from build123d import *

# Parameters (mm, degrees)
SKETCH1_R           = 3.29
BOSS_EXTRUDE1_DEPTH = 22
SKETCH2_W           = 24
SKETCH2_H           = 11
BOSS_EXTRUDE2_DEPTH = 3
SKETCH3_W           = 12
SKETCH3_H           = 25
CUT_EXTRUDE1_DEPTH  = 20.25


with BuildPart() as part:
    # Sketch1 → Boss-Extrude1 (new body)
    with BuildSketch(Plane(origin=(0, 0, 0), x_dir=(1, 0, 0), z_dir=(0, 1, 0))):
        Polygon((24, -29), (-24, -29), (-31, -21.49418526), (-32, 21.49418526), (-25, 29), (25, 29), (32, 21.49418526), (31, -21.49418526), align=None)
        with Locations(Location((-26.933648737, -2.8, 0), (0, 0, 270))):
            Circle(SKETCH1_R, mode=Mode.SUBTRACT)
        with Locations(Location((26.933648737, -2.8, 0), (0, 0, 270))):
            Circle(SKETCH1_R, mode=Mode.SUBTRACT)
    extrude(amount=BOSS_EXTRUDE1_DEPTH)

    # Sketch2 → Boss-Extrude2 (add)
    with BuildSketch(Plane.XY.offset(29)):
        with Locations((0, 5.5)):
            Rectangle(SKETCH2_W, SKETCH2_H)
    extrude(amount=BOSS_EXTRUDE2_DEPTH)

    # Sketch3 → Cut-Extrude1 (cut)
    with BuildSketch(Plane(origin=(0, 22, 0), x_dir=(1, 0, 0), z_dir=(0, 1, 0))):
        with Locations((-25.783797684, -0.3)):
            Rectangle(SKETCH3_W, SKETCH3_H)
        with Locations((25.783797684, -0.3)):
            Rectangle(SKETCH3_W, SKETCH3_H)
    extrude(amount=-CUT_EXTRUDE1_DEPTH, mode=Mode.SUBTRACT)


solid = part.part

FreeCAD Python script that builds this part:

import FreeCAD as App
import Part
import Sketcher

V = App.Vector
Q = App.Units.Quantity

doc = App.newDocument("Part")
body = doc.addObject("PartDesign::Body", "Body")

sketch1 = doc.addObject("Sketcher::SketchObject", "Sketch")
body.addObject(sketch1)
sketch1.AttachmentSupport = (doc.XZ_Plane, [""])
sketch1.MapMode = "FlatFace"
sketch1.addGeometry([
    Part.LineSegment(V(-24, 29, 0), V(24, 29, 0)),
    Part.LineSegment(V(24, 29, 0), V(31, 21.5, 0)),
    Part.LineSegment(V(31, 21.5, 0), V(32, -21.5, 0)),
    Part.LineSegment(V(32, -21.5, 0), V(25, -29, 0)),
    Part.LineSegment(V(25, -29, 0), V(-25, -29, 0)),
    Part.LineSegment(V(-25, -29, 0), V(-32, -21.5, 0)),
    Part.LineSegment(V(-32, -21.5, 0), V(-31, 21.5, 0)),
    Part.LineSegment(V(-31, 21.5, 0), V(-24, 29, 0)),
    Part.Circle(V(26.9, 2.8, 0), V(0, 0, 1), 3.3),
    Part.Circle(V(-26.9, 2.8, 0), V(0, 0, 1), 3.3),
], False)
sketch1.addConstraint([
    Sketcher.Constraint("Coincident", 0, 2, 1, 1),
    Sketcher.Constraint("Coincident", 1, 2, 2, 1),
    Sketcher.Constraint("Coincident", 2, 2, 3, 1),
    Sketcher.Constraint("Coincident", 3, 2, 4, 1),
    Sketcher.Constraint("Coincident", 4, 2, 5, 1),
    Sketcher.Constraint("Coincident", 5, 2, 6, 1),
    Sketcher.Constraint("Coincident", 6, 2, 7, 1),
    Sketcher.Constraint("Coincident", 7, 2, 0, 1),
    Sketcher.Constraint("Horizontal", 0),
    Sketcher.Constraint("Horizontal", 4),
    Sketcher.Constraint("Equal", 8, 9),
    Sketcher.Constraint("Symmetric", 8, 3, 9, 3, -2),
    Sketcher.Constraint("Symmetric", 2, 2, 5, 2, -2),
    Sketcher.Constraint("Symmetric", 1, 2, 6, 2, -2),
    Sketcher.Constraint("Parallel", 1, 5),
    Sketcher.Constraint("Parallel", 3, 7),
    Sketcher.Constraint("Equal", 1, 3),
    Sketcher.Constraint("Equal", 3, 5),
    Sketcher.Constraint("Diameter", 8, Q("6.58 mm")),
    Sketcher.Constraint("DistanceX", 0, 1, 0, 2, Q("48 mm")),
    Sketcher.Constraint("DistanceX", 4, 2, 4, 1, Q("50 mm")),
    Sketcher.Constraint("Distance", 2, Q("43 mm")),
    Sketcher.Constraint("DistanceY", -1, 1, 0, 2, Q("29 mm")),
    Sketcher.Constraint("DistanceX", -1, 1, 1, 2, Q("31 mm")),
    Sketcher.Constraint("DistanceY", 3, 2, -1, 1, Q("29 mm")),
    Sketcher.Constraint("DistanceY", -1, 1, 8, 3, Q("2.8 mm")),
    Sketcher.Constraint("DistanceX", -1, 1, 8, 3, Q("26.933649 mm")),
])
pad1 = doc.addObject("PartDesign::Pad", "Pad")
body.addObject(pad1)
pad1.Profile = sketch1
pad1.Length = 22
pad1.Reversed = True

sketch2 = doc.addObject("Sketcher::SketchObject", "Sketch001")
body.addObject(sketch2)
sketch2.AttachmentSupport = (doc.XY_Plane, [""])
sketch2.MapMode = "FlatFace"
sketch2.AttachmentOffset = App.Placement(V(0, 0, 29), App.Rotation())
sketch2.addGeometry([
    Part.LineSegment(V(-12, 11, 0), V(-12, 0, 0)),
    Part.LineSegment(V(-12, 0, 0), V(12, 0, 0)),
    Part.LineSegment(V(12, 0, 0), V(12, 11, 0)),
    Part.LineSegment(V(12, 11, 0), V(-12, 11, 0)),
], False)
sketch2.addConstraint([
    Sketcher.Constraint("Coincident", 0, 2, 1, 1),
    Sketcher.Constraint("Coincident", 1, 2, 2, 1),
    Sketcher.Constraint("Coincident", 2, 2, 3, 1),
    Sketcher.Constraint("Coincident", 3, 2, 0, 1),
    Sketcher.Constraint("Vertical", 0),
    Sketcher.Constraint("Horizontal", 1),
    Sketcher.Constraint("Vertical", 2),
    Sketcher.Constraint("Horizontal", 3),
    Sketcher.Constraint("Symmetric", 0, 2, 1, 2, -1, 1),
    Sketcher.Constraint("DistanceX", 1, 1, 1, 2, Q("24 mm")),
    Sketcher.Constraint("DistanceY", 0, 2, 0, 1, Q("11 mm")),
])
pad2 = doc.addObject("PartDesign::Pad", "Pad001")
body.addObject(pad2)
pad2.Profile = sketch2
pad2.Length = 3

sketch3 = doc.addObject("Sketcher::SketchObject", "Sketch002")
body.addObject(sketch3)
sketch3.AttachmentSupport = (doc.XZ_Plane, [""])
sketch3.MapMode = "FlatFace"
sketch3.AttachmentOffset = App.Placement(V(0, 0, -22), App.Rotation())
sketch3.addGeometry([
    Part.LineSegment(V(-32, -12, 0), V(-32, 13, 0)),
    Part.LineSegment(V(-32, 13, 0), V(-20, 13, 0)),
    Part.LineSegment(V(-20, 13, 0), V(-20, -12, 0)),
    Part.LineSegment(V(-20, -12, 0), V(-32, -12, 0)),
    Part.LineSegment(V(20, -12, 0), V(20, 13, 0)),
    Part.LineSegment(V(20, 13, 0), V(32, 13, 0)),
    Part.LineSegment(V(32, 13, 0), V(32, -12, 0)),
    Part.LineSegment(V(32, -12, 0), V(20, -12, 0)),
], False)
sketch3.addConstraint([
    Sketcher.Constraint("Coincident", 0, 2, 1, 1),
    Sketcher.Constraint("Coincident", 1, 2, 2, 1),
    Sketcher.Constraint("Coincident", 2, 2, 3, 1),
    Sketcher.Constraint("Coincident", 3, 2, 0, 1),
    Sketcher.Constraint("Coincident", 4, 2, 5, 1),
    Sketcher.Constraint("Coincident", 5, 2, 6, 1),
    Sketcher.Constraint("Coincident", 6, 2, 7, 1),
    Sketcher.Constraint("Coincident", 7, 2, 4, 1),
    Sketcher.Constraint("Vertical", 0),
    Sketcher.Constraint("Horizontal", 1),
    Sketcher.Constraint("Vertical", 2),
    Sketcher.Constraint("Horizontal", 3),
    Sketcher.Constraint("Vertical", 4),
    Sketcher.Constraint("Horizontal", 5),
    Sketcher.Constraint("Vertical", 6),
    Sketcher.Constraint("Horizontal", 7),
    Sketcher.Constraint("Symmetric", 1, 2, 4, 2, -2),
    Sketcher.Constraint("Symmetric", 3, 2, 6, 2, -2),
    Sketcher.Constraint("DistanceX", 1, 1, 1, 2, Q("12 mm")),
    Sketcher.Constraint("DistanceY", 0, 1, 0, 2, Q("25 mm")),
    Sketcher.Constraint("DistanceY", -1, 1, 0, 2, Q("12.8 mm")),
    Sketcher.Constraint("DistanceX", 0, 2, -1, 1, Q("31.783798 mm")),
])
pocket1 = doc.addObject("PartDesign::Pocket", "Pocket")
body.addObject(pocket1)
pocket1.Profile = sketch3
pocket1.Length = 20.25
pocket1.Reversed = True

doc.recompute()
